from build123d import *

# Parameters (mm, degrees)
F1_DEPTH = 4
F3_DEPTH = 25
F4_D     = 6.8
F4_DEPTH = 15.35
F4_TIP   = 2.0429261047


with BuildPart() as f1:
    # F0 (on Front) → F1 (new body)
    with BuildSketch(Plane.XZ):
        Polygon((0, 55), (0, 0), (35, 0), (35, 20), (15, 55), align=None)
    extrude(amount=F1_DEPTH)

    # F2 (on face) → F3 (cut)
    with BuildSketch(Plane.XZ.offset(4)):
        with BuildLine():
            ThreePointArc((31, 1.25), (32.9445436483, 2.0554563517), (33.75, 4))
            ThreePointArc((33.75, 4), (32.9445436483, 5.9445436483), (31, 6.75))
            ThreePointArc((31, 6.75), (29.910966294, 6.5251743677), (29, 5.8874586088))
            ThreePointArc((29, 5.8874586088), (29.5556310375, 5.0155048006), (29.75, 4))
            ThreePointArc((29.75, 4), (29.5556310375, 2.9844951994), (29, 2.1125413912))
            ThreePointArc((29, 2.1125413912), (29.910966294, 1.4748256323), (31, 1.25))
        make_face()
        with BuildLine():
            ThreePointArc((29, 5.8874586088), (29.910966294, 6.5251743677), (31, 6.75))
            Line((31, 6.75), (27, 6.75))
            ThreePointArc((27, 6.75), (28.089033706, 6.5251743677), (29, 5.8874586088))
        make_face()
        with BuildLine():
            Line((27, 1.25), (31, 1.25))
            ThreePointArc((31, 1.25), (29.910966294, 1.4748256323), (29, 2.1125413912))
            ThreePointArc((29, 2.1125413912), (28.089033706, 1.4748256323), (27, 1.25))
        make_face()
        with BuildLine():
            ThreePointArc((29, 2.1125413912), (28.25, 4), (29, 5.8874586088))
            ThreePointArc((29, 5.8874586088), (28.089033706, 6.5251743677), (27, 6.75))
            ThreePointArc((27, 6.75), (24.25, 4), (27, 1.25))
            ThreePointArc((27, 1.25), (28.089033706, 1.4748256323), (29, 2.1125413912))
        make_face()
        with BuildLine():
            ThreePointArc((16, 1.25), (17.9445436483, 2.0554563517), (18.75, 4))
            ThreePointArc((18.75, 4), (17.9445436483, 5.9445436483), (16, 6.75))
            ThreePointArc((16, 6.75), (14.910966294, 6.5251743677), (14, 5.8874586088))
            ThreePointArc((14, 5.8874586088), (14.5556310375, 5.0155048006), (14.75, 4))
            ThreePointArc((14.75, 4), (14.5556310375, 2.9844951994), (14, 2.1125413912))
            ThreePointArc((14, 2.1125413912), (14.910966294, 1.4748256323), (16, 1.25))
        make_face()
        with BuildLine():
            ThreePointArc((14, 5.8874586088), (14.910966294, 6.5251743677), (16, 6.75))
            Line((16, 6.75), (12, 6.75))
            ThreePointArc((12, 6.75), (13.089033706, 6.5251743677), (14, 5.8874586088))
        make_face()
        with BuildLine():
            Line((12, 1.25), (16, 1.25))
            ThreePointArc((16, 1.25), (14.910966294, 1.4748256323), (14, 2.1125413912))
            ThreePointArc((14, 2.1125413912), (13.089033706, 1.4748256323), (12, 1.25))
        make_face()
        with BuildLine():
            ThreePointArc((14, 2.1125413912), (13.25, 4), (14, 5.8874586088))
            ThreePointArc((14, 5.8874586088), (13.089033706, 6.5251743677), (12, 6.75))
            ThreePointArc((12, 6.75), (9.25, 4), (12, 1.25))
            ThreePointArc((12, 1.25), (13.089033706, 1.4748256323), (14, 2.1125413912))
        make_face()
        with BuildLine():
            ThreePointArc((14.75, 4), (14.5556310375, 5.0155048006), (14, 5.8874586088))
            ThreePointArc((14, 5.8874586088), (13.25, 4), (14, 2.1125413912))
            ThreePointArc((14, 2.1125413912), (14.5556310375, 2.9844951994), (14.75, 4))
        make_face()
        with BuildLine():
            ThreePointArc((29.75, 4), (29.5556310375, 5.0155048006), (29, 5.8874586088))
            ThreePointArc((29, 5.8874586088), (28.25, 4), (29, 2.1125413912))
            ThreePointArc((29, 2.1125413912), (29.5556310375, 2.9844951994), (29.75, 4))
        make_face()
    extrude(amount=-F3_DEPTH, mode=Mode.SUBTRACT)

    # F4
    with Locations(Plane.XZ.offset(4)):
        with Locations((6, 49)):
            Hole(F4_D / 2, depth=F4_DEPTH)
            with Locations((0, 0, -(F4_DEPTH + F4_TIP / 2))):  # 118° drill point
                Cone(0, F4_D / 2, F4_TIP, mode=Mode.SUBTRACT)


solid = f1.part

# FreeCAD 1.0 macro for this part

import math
import FreeCAD as App
import Part
import Sketcher

V = App.Vector
Q = App.Units.Quantity


def add_polygon(sketch, points):
    """Adds a closed chain of lines whose ends are joined by coincident constraints."""
    first, n = sketch.GeometryCount, len(points)
    for a, b in zip(points, points[1:] + points[:1]):
        sketch.addGeometry(Part.LineSegment(App.Vector(*a, 0), App.Vector(*b, 0)), False)
    for i in range(n):
        sketch.addConstraint(Sketcher.Constraint("Coincident", first + i, 2, first + (i + 1) % n, 1))

doc = App.newDocument("Part")
body = doc.addObject("PartDesign::Body", "Body")

sketch1 = body.newObject("Sketcher::SketchObject", "Sketch")
sketch1.AttachmentSupport = (doc.getObject("XZ_Plane"), [""])
sketch1.MapMode = "FlatFace"
add_polygon(sketch1, [(0, 55), (0, 0), (35, 0), (35, 20), (15, 55)])
sketch1.addConstraint([
    Sketcher.Constraint("Vertical", 0),
    Sketcher.Constraint("Horizontal", 1),
    Sketcher.Constraint("Vertical", 2),
    Sketcher.Constraint("Horizontal", 4),
    Sketcher.Constraint("Coincident", 0, 2, -1, 1),
    Sketcher.Constraint("DistanceX", 1, 1, 1, 2, Q("35 mm")),
    Sketcher.Constraint("DistanceX", 4, 2, 4, 1, Q("15 mm")),
    Sketcher.Constraint("DistanceY", 0, 2, 0, 1, Q("55 mm")),
    Sketcher.Constraint("DistanceY", 2, 1, 2, 2, Q("20 mm")),
])
pad1 = body.newObject("PartDesign::Pad", "Pad")
pad1.Profile = sketch1
pad1.Length = 4

sketch2 = body.newObject("Sketcher::SketchObject", "Sketch001")
sketch2.AttachmentSupport = (doc.getObject("XZ_Plane"), [""])
sketch2.MapMode = "FlatFace"
sketch2.AttachmentOffset = App.Placement(V(0, 0, 4), App.Rotation())
sketch2.addGeometry([
    Part.ArcOfCircle(Part.Circle(V(31, 4, 0), V(0, 0, 1), 2.75), math.radians(-90), math.radians(0)),
    Part.ArcOfCircle(Part.Circle(V(31, 4, 0), V(0, 0, 1), 2.75), math.radians(0), math.radians(90)),
    Part.LineSegment(V(31, 6.75, 0), V(27, 6.75, 0)),
    Part.ArcOfCircle(Part.Circle(V(27, 4, 0), V(0, 0, 1), 2.75), math.radians(90), math.radians(270)),
    Part.LineSegment(V(27, 1.25, 0), V(31, 1.25, 0)),
    Part.ArcOfCircle(Part.Circle(V(16, 4, 0), V(0, 0, 1), 2.75), math.radians(-90), math.radians(0)),
    Part.ArcOfCircle(Part.Circle(V(16, 4, 0), V(0, 0, 1), 2.75), math.radians(0), math.radians(90)),
    Part.LineSegment(V(16, 6.75, 0), V(12, 6.75, 0)),
    Part.ArcOfCircle(Part.Circle(V(12, 4, 0), V(0, 0, 1), 2.75), math.radians(90), math.radians(270)),
    Part.LineSegment(V(12, 1.25, 0), V(16, 1.25, 0)),
], False)
sketch2.addConstraint([
    Sketcher.Constraint("Tangent", 0, 2, 1, 1),
    Sketcher.Constraint("Tangent", 1, 2, 2, 1),
    Sketcher.Constraint("Tangent", 2, 2, 3, 1),
    Sketcher.Constraint("Tangent", 3, 2, 4, 1),
    Sketcher.Constraint("Tangent", 4, 2, 0, 1),
    Sketcher.Constraint("Tangent", 5, 2, 6, 1),
    Sketcher.Constraint("Tangent", 6, 2, 7, 1),
    Sketcher.Constraint("Tangent", 7, 2, 8, 1),
    Sketcher.Constraint("Tangent", 8, 2, 9, 1),
    Sketcher.Constraint("Tangent", 9, 2, 5, 1),
    Sketcher.Constraint("Horizontal", 2),
    Sketcher.Constraint("Horizontal", 4),
    Sketcher.Constraint("Horizontal", 7),
    Sketcher.Constraint("Horizontal", 9),
    Sketcher.Constraint("Equal", 0, 1),
    Sketcher.Constraint("Equal", 3, 5),
    Sketcher.Constraint("Equal", 5, 6),
    Sketcher.Constraint("Horizontal", 3, 3, 5, 3),
    Sketcher.Constraint("Horizontal", 8, 3, 0, 2),
    Sketcher.Constraint("Horizontal", 0, 2, 5, 2),
    Sketcher.Constraint("Equal", 4, 7),
    Sketcher.Constraint("DistanceX", 2, 2, 2, 1, Q("4 mm")),
    Sketcher.Constraint("Radius", 0, Q("2.75 mm")),
    Sketcher.Constraint("DistanceX", -1, 1, 0, 3, Q("31 mm")),
    Sketcher.Constraint("DistanceY", -1, 1, 0, 3, Q("4 mm")),
    Sketcher.Constraint("DistanceX", -1, 1, 5, 3, Q("16 mm")),
])
pocket1 = body.newObject("PartDesign::Pocket", "Pocket")
pocket1.Profile = sketch2
pocket1.Length = 25

sketch3 = body.newObject("Sketcher::SketchObject", "Sketch002")
sketch3.AttachmentSupport = (doc.getObject("XZ_Plane"), [""])
sketch3.MapMode = "FlatFace"
sketch3.AttachmentOffset = App.Placement(V(0, 0, 4), App.Rotation())
sketch3.addGeometry(Part.Circle(V(6, 49, 0), V(0, 0, 1), 3.4), False)
sketch3.addConstraint([
    Sketcher.Constraint("Diameter", 0, Q("6.8 mm")),
    Sketcher.Constraint("DistanceX", -1, 1, 0, 3, Q("6 mm")),
    Sketcher.Constraint("DistanceY", -1, 1, 0, 3, Q("49 mm")),
])
doc.recompute()
hole = body.newObject("PartDesign::Hole", "Hole")
hole.Profile = sketch3
hole.ThreadType = "None"
hole.Diameter = 6.8
hole.DepthType = "Dimension"
hole.Depth = 15.35
hole.DrillPoint = "Angled"
hole.DrillPointAngle = 118

doc.recompute()
